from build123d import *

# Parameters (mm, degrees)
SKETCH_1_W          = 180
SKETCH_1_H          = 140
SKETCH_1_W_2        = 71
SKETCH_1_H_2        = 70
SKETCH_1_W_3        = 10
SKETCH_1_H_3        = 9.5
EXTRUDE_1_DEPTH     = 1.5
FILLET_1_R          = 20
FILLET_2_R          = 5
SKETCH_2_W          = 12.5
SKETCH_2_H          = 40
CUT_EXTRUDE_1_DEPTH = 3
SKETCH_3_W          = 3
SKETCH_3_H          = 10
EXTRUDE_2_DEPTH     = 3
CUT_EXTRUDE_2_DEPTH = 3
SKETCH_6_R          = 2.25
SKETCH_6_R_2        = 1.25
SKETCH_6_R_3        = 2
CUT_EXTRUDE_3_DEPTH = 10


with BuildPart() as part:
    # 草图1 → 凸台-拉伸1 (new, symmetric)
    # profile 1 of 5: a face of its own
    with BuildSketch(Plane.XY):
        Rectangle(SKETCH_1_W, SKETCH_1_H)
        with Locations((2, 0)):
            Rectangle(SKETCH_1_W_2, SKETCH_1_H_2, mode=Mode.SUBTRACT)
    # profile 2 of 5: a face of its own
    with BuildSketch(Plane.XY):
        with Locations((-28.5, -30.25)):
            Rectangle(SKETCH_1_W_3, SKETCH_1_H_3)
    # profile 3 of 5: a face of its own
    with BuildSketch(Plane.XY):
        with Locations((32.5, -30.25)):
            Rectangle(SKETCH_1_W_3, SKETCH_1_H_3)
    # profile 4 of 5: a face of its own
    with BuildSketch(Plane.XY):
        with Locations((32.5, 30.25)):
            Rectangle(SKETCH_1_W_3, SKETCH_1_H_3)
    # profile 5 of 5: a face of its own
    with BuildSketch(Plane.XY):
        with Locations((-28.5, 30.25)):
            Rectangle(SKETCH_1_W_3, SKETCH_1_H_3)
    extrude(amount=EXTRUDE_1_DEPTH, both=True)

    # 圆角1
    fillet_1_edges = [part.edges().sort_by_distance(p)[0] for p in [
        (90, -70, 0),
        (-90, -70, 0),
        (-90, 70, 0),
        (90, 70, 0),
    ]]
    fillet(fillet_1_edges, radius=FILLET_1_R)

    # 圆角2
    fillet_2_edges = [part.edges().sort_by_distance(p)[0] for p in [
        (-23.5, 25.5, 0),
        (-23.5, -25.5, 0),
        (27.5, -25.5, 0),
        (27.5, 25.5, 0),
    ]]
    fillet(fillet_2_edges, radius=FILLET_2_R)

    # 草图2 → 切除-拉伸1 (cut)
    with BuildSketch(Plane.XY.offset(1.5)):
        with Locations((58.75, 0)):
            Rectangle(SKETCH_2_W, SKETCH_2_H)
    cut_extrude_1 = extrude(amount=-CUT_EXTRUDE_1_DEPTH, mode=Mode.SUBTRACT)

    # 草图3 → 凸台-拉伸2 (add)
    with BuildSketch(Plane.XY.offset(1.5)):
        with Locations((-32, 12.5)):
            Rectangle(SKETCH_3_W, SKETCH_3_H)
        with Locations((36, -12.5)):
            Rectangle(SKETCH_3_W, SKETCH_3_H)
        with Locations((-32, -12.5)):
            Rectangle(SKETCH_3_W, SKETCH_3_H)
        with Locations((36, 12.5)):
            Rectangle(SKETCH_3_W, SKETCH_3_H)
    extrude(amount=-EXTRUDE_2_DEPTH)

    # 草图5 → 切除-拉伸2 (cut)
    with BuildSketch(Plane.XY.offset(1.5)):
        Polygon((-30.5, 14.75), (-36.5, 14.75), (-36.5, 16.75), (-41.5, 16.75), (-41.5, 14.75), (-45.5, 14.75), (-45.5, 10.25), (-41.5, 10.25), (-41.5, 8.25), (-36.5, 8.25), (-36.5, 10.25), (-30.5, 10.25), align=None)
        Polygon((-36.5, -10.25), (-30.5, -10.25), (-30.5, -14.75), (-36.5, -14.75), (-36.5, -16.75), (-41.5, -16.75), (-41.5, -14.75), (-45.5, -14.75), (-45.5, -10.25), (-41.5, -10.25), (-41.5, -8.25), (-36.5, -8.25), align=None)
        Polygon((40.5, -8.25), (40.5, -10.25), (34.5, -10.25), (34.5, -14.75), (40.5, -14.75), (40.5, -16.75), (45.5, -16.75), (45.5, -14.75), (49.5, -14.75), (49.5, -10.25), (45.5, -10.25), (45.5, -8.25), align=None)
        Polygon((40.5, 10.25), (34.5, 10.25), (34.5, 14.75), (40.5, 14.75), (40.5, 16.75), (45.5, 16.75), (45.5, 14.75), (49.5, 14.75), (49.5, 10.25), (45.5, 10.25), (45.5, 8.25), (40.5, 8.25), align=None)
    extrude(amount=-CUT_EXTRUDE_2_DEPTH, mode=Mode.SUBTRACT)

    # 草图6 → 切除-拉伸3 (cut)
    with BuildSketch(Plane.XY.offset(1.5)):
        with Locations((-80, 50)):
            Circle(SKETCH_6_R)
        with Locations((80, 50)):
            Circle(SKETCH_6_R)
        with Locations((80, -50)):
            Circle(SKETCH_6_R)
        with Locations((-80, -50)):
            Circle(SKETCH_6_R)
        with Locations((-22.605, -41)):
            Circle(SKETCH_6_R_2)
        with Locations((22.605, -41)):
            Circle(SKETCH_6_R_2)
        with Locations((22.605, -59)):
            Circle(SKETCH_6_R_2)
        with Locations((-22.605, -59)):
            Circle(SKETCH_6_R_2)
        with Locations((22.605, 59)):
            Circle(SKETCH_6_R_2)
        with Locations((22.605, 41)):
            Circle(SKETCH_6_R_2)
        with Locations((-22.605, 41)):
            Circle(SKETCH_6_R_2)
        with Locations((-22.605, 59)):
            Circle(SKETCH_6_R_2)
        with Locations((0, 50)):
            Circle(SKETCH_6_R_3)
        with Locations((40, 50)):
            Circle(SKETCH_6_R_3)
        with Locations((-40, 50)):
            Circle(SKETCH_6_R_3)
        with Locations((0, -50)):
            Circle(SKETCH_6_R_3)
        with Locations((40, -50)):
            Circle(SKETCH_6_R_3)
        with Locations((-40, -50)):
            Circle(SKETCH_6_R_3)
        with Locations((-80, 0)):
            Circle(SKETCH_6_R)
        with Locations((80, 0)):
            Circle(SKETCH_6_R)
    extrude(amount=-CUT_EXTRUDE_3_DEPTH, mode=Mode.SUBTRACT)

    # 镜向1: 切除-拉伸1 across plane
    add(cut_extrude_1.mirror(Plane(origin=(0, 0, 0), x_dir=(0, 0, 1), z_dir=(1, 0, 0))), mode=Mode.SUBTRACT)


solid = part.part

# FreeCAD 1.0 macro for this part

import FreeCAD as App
import Part
import Sketcher
from FreeCAD import Vector


def edges_at(feature, points):
    """Names of the edges that pass closest to the given points."""
    edges = feature.Shape.Edges
    near = lambda p: min(range(len(edges)), key=lambda i: edges[i].distToShape(Part.Vertex(*p))[0])
    return sorted({f"Edge{near(p) + 1}" for p in points})

doc = App.newDocument("Part")
body = doc.addObject("PartDesign::Body", "Body")

sketch1 = body.newObject("Sketcher::SketchObject", "Sketch")
sketch1.AttachmentSupport = (doc.getObject("XY_Plane"), [""])
sketch1.MapMode = "FlatFace"
sketch1.addGeometry([
    Part.LineSegment(Vector(-90, 70, 0), Vector(-90, -70, 0)),
    Part.LineSegment(Vector(-90, -70, 0), Vector(90, -70, 0)),
    Part.LineSegment(Vector(90, -70, 0), Vector(90, 70, 0)),
    Part.LineSegment(Vector(90, 70, 0), Vector(-90, 70, 0)),
    Part.LineSegment(Vector(28, -35, 0), Vector(-24, -35, 0)),
    Part.LineSegment(Vector(-24, -35, 0), Vector(-24, -26, 0)),
    Part.LineSegment(Vector(-24, -26, 0), Vector(-34, -26, 0)),
    Part.LineSegment(Vector(-34, -26, 0), Vector(-34, 26, 0)),
    Part.LineSegment(Vector(-34, 26, 0), Vector(-24, 26, 0)),
    Part.LineSegment(Vector(-24, 26, 0), Vector(-24, 35, 0)),
    Part.LineSegment(Vector(-24, 35, 0), Vector(28, 35, 0)),
    Part.LineSegment(Vector(28, 35, 0), Vector(28, 26, 0)),
    Part.LineSegment(Vector(28, 26, 0), Vector(38, 26, 0)),
    Part.LineSegment(Vector(38, 26, 0), Vector(38, -26, 0)),
    Part.LineSegment(Vector(38, -26, 0), Vector(28, -26, 0)),
    Part.LineSegment(Vector(28, -26, 0), Vector(28, -35, 0)),
], False)
sketch1.addConstraint([
    Sketcher.Constraint("Coincident", 0, 2, 1, 1),
    Sketcher.Constraint("Coincident", 1, 2, 2, 1),
    Sketcher.Constraint("Coincident", 2, 2, 3, 1),
    Sketcher.Constraint("Coincident", 3, 2, 0, 1),
    Sketcher.Constraint("Coincident", 4, 2, 5, 1),
    Sketcher.Constraint("Coincident", 5, 2, 6, 1),
    Sketcher.Constraint("Coincident", 6, 2, 7, 1),
    Sketcher.Constraint("Coincident", 7, 2, 8, 1),
    Sketcher.Constraint("Coincident", 8, 2, 9, 1),
    Sketcher.Constraint("Coincident", 9, 2, 10, 1),
    Sketcher.Constraint("Coincident", 10, 2, 11, 1),
    Sketcher.Constraint("Coincident", 11, 2, 12, 1),
    Sketcher.Constraint("Coincident", 12, 2, 13, 1),
    Sketcher.Constraint("Coincident", 13, 2, 14, 1),
    Sketcher.Constraint("Coincident", 14, 2, 15, 1),
    Sketcher.Constraint("Coincident", 15, 2, 4, 1),
    Sketcher.Constraint("Vertical", 0),
    Sketcher.Constraint("Horizontal", 1),
    Sketcher.Constraint("Vertical", 2),
    Sketcher.Constraint("Horizontal", 3),
    Sketcher.Constraint("Horizontal", 4),
    Sketcher.Constraint("Vertical", 5),
    Sketcher.Constraint("Horizontal", 6),
    Sketcher.Constraint("Vertical", 7),
    Sketcher.Constraint("Horizontal", 8),
    Sketcher.Constraint("Vertical", 9),
    Sketcher.Constraint("Horizontal", 10),
    Sketcher.Constraint("Vertical", 11),
    Sketcher.Constraint("Horizontal", 12),
    Sketcher.Constraint("Vertical", 13),
    Sketcher.Constraint("Horizontal", 14),
    Sketcher.Constraint("Vertical", 15),
    Sketcher.Constraint("Symmetric", 0, 2, 2, 2, -1, 1),
    Sketcher.Constraint("Symmetric", 5, 2, 8, 2, -1),
    Sketcher.Constraint("Symmetric", 11, 2, 14, 2, -1),
    Sketcher.Constraint("Horizontal", 8, 2, 11, 2),
    Sketcher.Constraint("Equal", 8, 12),
    Sketcher.Constraint("Equal", 10, 7),
    Sketcher.Constraint("Equal", 5, 9),
    Sketcher.Constraint("DistanceX", 1, 1, 1, 2, 180.0),
    Sketcher.Constraint("DistanceX", 4, 2, 4, 1, 51.0),
    Sketcher.Constraint("DistanceX", 6, 2, 6, 1, 10.0),
    Sketcher.Constraint("DistanceY", 0, 2, 0, 1, 140.0),
    Sketcher.Constraint("DistanceY", 5, 1, 5, 2, 9.5),
    Sketcher.Constraint("DistanceX", 4, 2, -1, 1, 23.5),
])
pad1 = body.newObject("PartDesign::Pad", "Pad")
pad1.Profile = sketch1
pad1.Length = 3
pad1.Midplane = True
doc.recompute()

fillet = body.newObject("PartDesign::Fillet", "Fillet")
fillet.Base = (pad1, edges_at(pad1, [
    (90, -70, 0),
    (-90, -70, 0),
    (-90, 70, 0),
    (90, 70, 0),
]))
fillet.Radius = 20
doc.recompute()

fillet2 = body.newObject("PartDesign::Fillet", "Fillet001")
fillet2.Base = (fillet, edges_at(fillet, [
    (-23.5, 25.5, 0),
    (-23.5, -25.5, 0),
    (27.5, -25.5, 0),
    (27.5, 25.5, 0),
]))
fillet2.Radius = 5

sketch2 = body.newObject("Sketcher::SketchObject", "Sketch001")
sketch2.AttachmentSupport = (doc.getObject("XY_Plane"), [""])
sketch2.MapMode = "FlatFace"
sketch2.AttachmentOffset = App.Placement(Vector(0, 0, 1.5), App.Rotation())
sketch2.addGeometry([
    Part.LineSegment(Vector(52, 20, 0), Vector(52, -20, 0)),
    Part.LineSegment(Vector(52, -20, 0), Vector(65, -20, 0)),
    Part.LineSegment(Vector(65, -20, 0), Vector(65, 20, 0)),
    Part.LineSegment(Vector(65, 20, 0), Vector(52, 20, 0)),
], False)
sketch2.addConstraint([
    Sketcher.Constraint("Coincident", 0, 2, 1, 1),
    Sketcher.Constraint("Coincident", 1, 2, 2, 1),
    Sketcher.Constraint("Coincident", 2, 2, 3, 1),
    Sketcher.Constraint("Coincident", 3, 2, 0, 1),
    Sketcher.Constraint("Vertical", 0),
    Sketcher.Constraint("Horizontal", 1),
    Sketcher.Constraint("Vertical", 2),
    Sketcher.Constraint("Horizontal", 3),
    Sketcher.Constraint("DistanceY", 0, 2, 0, 1, 40.0),
    Sketcher.Constraint("DistanceX", 1, 1, 1, 2, 12.5),
    Sketcher.Constraint("DistanceY", 0, 2, -1, 1, 20.0),
    Sketcher.Constraint("DistanceX", -1, 1, 1, 2, 65.0),
])
pocket1 = body.newObject("PartDesign::Pocket", "Pocket")
pocket1.Profile = sketch2
pocket1.Length = 3

sketch3 = body.newObject("Sketcher::SketchObject", "Sketch002")
sketch3.AttachmentSupport = (doc.getObject("XY_Plane"), [""])
sketch3.MapMode = "FlatFace"
sketch3.AttachmentOffset = App.Placement(Vector(0, 0, 1.5), App.Rotation())
sketch3.addGeometry([
    Part.LineSegment(Vector(-33.5, 17.5, 0), Vector(-33.5, 7.5, 0)),
    Part.LineSegment(Vector(-33.5, 7.5, 0), Vector(-30.5, 7.5, 0)),
    Part.LineSegment(Vector(-30.5, 7.5, 0), Vector(-30.5, 17.5, 0)),
    Part.LineSegment(Vector(-30.5, 17.5, 0), Vector(-33.5, 17.5, 0)),
    Part.LineSegment(Vector(34.5, -7.5, 0), Vector(34.5, -17.5, 0)),
    Part.LineSegment(Vector(34.5, -17.5, 0), Vector(37.5, -17.5, 0)),
    Part.LineSegment(Vector(37.5, -17.5, 0), Vector(37.5, -7.5, 0)),
    Part.LineSegment(Vector(37.5, -7.5, 0), Vector(34.5, -7.5, 0)),
    Part.LineSegment(Vector(-33.5, -7.5, 0), Vector(-33.5, -17.5, 0)),
    Part.LineSegment(Vector(-33.5, -17.5, 0), Vector(-30.5, -17.5, 0)),
    Part.LineSegment(Vector(-30.5, -17.5, 0), Vector(-30.5, -7.5, 0)),
    Part.LineSegment(Vector(-30.5, -7.5, 0), Vector(-33.5, -7.5, 0)),
    Part.LineSegment(Vector(34.5, 17.5, 0), Vector(34.5, 7.5, 0)),
    Part.LineSegment(Vector(34.5, 7.5, 0), Vector(37.5, 7.5, 0)),
    Part.LineSegment(Vector(37.5, 7.5, 0), Vector(37.5, 17.5, 0)),
    Part.LineSegment(Vector(37.5, 17.5, 0), Vector(34.5, 17.5, 0)),
], False)
sketch3.addConstraint([
    Sketcher.Constraint("Coincident", 0, 2, 1, 1),
    Sketcher.Constraint("Coincident", 1, 2, 2, 1),
    Sketcher.Constraint("Coincident", 2, 2, 3, 1),
    Sketcher.Constraint("Coincident", 3, 2, 0, 1),
    Sketcher.Constraint("Coincident", 4, 2, 5, 1),
    Sketcher.Constraint("Coincident", 5, 2, 6, 1),
    Sketcher.Constraint("Coincident", 6, 2, 7, 1),
    Sketcher.Constraint("Coincident", 7, 2, 4, 1),
    Sketcher.Constraint("Coincident", 8, 2, 9, 1),
    Sketcher.Constraint("Coincident", 9, 2, 10, 1),
    Sketcher.Constraint("Coincident", 10, 2, 11, 1),
    Sketcher.Constraint("Coincident", 11, 2, 8, 1),
    Sketcher.Constraint("Coincident", 12, 2, 13, 1),
    Sketcher.Constraint("Coincident", 13, 2, 14, 1),
    Sketcher.Constraint("Coincident", 14, 2, 15, 1),
    Sketcher.Constraint("Coincident", 15, 2, 12, 1),
    Sketcher.Constraint("Vertical", 0),
    Sketcher.Constraint("Horizontal", 1),
    Sketcher.Constraint("Vertical", 2),
    Sketcher.Constraint("Horizontal", 3),
    Sketcher.Constraint("Vertical", 4),
    Sketcher.Constraint("Horizontal", 5),
    Sketcher.Constraint("Vertical", 6),
    Sketcher.Constraint("Horizontal", 7),
    Sketcher.Constraint("Vertical", 8),
    Sketcher.Constraint("Horizontal", 9),
    Sketcher.Constraint("Vertical", 10),
    Sketcher.Constraint("Horizontal", 11),
    Sketcher.Constraint("Vertical", 12),
    Sketcher.Constraint("Horizontal", 13),
    Sketcher.Constraint("Vertical", 14),
    Sketcher.Constraint("Horizontal", 15),
    Sketcher.Constraint("Symmetric", 3, 2, 8, 2, -1),
    Sketcher.Constraint("Symmetric", 1, 2, 10, 2, -1),
    Sketcher.Constraint("Symmetric", 7, 2, 12, 2, -1),
    Sketcher.Constraint("Symmetric", 5, 2, 14, 2, -1),
    Sketcher.Constraint("Horizontal", 5, 2, 8, 2),
    Sketcher.Constraint("Horizontal", 7, 2, 10, 2),
    Sketcher.Constraint("Equal", 3, 5),
    Sketcher.Constraint("DistanceX", 1, 1, 1, 2, 3.0),
    Sketcher.Constraint("DistanceY", 0, 2, 0, 1, 10.0),
    Sketcher.Constraint("DistanceX", 1, 2, 4, 2, 65.0),
    Sketcher.Constraint("DistanceY", 4, 2, 1, 2, 25.0),
    Sketcher.Constraint("DistanceX", 0, 2, -1, 1, 33.5),
])
pad2 = body.newObject("PartDesign::Pad", "Pad001")
pad2.Profile = sketch3
pad2.Length = 3
pad2.Reversed = True

sketch4 = body.newObject("Sketcher::SketchObject", "Sketch003")
sketch4.AttachmentSupport = (doc.getObject("XY_Plane"), [""])
sketch4.MapMode = "FlatFace"
sketch4.AttachmentOffset = App.Placement(Vector(0, 0, 1.5), App.Rotation())
sketch4.addGeometry([
    Part.LineSegment(Vector(-30.5, 14.8, 0), Vector(-36.5, 14.8, 0)),
    Part.LineSegment(Vector(-36.5, 14.8, 0), Vector(-36.5, 16.8, 0)),
    Part.LineSegment(Vector(-36.5, 16.8, 0), Vector(-41.5, 16.8, 0)),
    Part.LineSegment(Vector(-41.5, 16.8, 0), Vector(-41.5, 14.8, 0)),
    Part.LineSegment(Vector(-41.5, 14.8, 0), Vector(-45.5, 14.8, 0)),
    Part.LineSegment(Vector(-45.5, 14.8, 0), Vector(-45.5, 10.2, 0)),
    Part.LineSegment(Vector(-45.5, 10.2, 0), Vector(-41.5, 10.2, 0)),
    Part.LineSegment(Vector(-41.5, 10.2, 0), Vector(-41.5, 8.2, 0)),
    Part.LineSegment(Vector(-41.5, 8.2, 0), Vector(-36.5, 8.2, 0)),
    Part.LineSegment(Vector(-36.5, 8.2, 0), Vector(-36.5, 10.2, 0)),
    Part.LineSegment(Vector(-36.5, 10.2, 0), Vector(-30.5, 10.2, 0)),
    Part.LineSegment(Vector(-30.5, 10.2, 0), Vector(-30.5, 14.8, 0)),
    Part.LineSegment(Vector(-30.5, -10.2, 0), Vector(-36.5, -10.2, 0)),
    Part.LineSegment(Vector(-36.5, -10.2, 0), Vector(-36.5, -8.2, 0)),
    Part.LineSegment(Vector(-36.5, -8.2, 0), Vector(-41.5, -8.2, 0)),
    Part.LineSegment(Vector(-41.5, -8.2, 0), Vector(-41.5, -10.2, 0)),
    Part.LineSegment(Vector(-41.5, -10.2, 0), Vector(-45.5, -10.2, 0)),
    Part.LineSegment(Vector(-45.5, -10.2, 0), Vector(-45.5, -14.8, 0)),
    Part.LineSegment(Vector(-45.5, -14.8, 0), Vector(-41.5, -14.8, 0)),
    Part.LineSegment(Vector(-41.5, -14.8, 0), Vector(-41.5, -16.8, 0)),
    Part.LineSegment(Vector(-41.5, -16.8, 0), Vector(-36.5, -16.8, 0)),
    Part.LineSegment(Vector(-36.5, -16.8, 0), Vector(-36.5, -14.8, 0)),
    Part.LineSegment(Vector(-36.5, -14.8, 0), Vector(-30.5, -14.8, 0)),
    Part.LineSegment(Vector(-30.5, -14.8, 0), Vector(-30.5, -10.2, 0)),
    Part.LineSegment(Vector(40.5, -8.2, 0), Vector(40.5, -10.2, 0)),
    Part.LineSegment(Vector(40.5, -10.2, 0), Vector(34.5, -10.2, 0)),
    Part.LineSegment(Vector(34.5, -10.2, 0), Vector(34.5, -14.8, 0)),
    Part.LineSegment(Vector(34.5, -14.8, 0), Vector(40.5, -14.8, 0)),
    Part.LineSegment(Vector(40.5, -14.8, 0), Vector(40.5, -16.8, 0)),
    Part.LineSegment(Vector(40.5, -16.8, 0), Vector(45.5, -16.8, 0)),
    Part.LineSegment(Vector(45.5, -16.8, 0), Vector(45.5, -14.8, 0)),
    Part.LineSegment(Vector(45.5, -14.8, 0), Vector(49.5, -14.8, 0)),
    Part.LineSegment(Vector(49.5, -14.8, 0), Vector(49.5, -10.2, 0)),
    Part.LineSegment(Vector(49.5, -10.2, 0), Vector(45.5, -10.2, 0)),
    Part.LineSegment(Vector(45.5, -10.2, 0), Vector(45.5, -8.2, 0)),
    Part.LineSegment(Vector(45.5, -8.2, 0), Vector(40.5, -8.2, 0)),
    Part.LineSegment(Vector(34.5, 10.2, 0), Vector(40.5, 10.2, 0)),
    Part.LineSegment(Vector(40.5, 10.2, 0), Vector(40.5, 8.2, 0)),
    Part.LineSegment(Vector(40.5, 8.2, 0), Vector(45.5, 8.2, 0)),
    Part.LineSegment(Vector(45.5, 8.2, 0), Vector(45.5, 10.2, 0)),
    Part.LineSegment(Vector(45.5, 10.2, 0), Vector(49.5, 10.2, 0)),
    Part.LineSegment(Vector(49.5, 10.2, 0), Vector(49.5, 14.8, 0)),
    Part.LineSegment(Vector(49.5, 14.8, 0), Vector(45.5, 14.8, 0)),
    Part.LineSegment(Vector(45.5, 14.8, 0), Vector(45.5, 16.8, 0)),
    Part.LineSegment(Vector(45.5, 16.8, 0), Vector(40.5, 16.8, 0)),
    Part.LineSegment(Vector(40.5, 16.8, 0), Vector(40.5, 14.8, 0)),
    Part.LineSegment(Vector(40.5, 14.8, 0), Vector(34.5, 14.8, 0)),
    Part.LineSegment(Vector(34.5, 14.8, 0), Vector(34.5, 10.2, 0)),
], False)
sketch4.addConstraint([
    Sketcher.Constraint("Coincident", 0, 2, 1, 1),
    Sketcher.Constraint("Coincident", 1, 2, 2, 1),
    Sketcher.Constraint("Coincident", 2, 2, 3, 1),
    Sketcher.Constraint("Coincident", 3, 2, 4, 1),
    Sketcher.Constraint("Coincident", 4, 2, 5, 1),
    Sketcher.Constraint("Coincident", 5, 2, 6, 1),
    Sketcher.Constraint("Coincident", 6, 2, 7, 1),
    Sketcher.Constraint("Coincident", 7, 2, 8, 1),
    Sketcher.Constraint("Coincident", 8, 2, 9, 1),
    Sketcher.Constraint("Coincident", 9, 2, 10, 1),
    Sketcher.Constraint("Coincident", 10, 2, 11, 1),
    Sketcher.Constraint("Coincident", 11, 2, 0, 1),
    Sketcher.Constraint("Coincident", 12, 2, 13, 1),
    Sketcher.Constraint("Coincident", 13, 2, 14, 1),
    Sketcher.Constraint("Coincident", 14, 2, 15, 1),
    Sketcher.Constraint("Coincident", 15, 2, 16, 1),
    Sketcher.Constraint("Coincident", 16, 2, 17, 1),
    Sketcher.Constraint("Coincident", 17, 2, 18, 1),
    Sketcher.Constraint("Coincident", 18, 2, 19, 1),
    Sketcher.Constraint("Coincident", 19, 2, 20, 1),
    Sketcher.Constraint("Coincident", 20, 2, 21, 1),
    Sketcher.Constraint("Coincident", 21, 2, 22, 1),
    Sketcher.Constraint("Coincident", 22, 2, 23, 1),
    Sketcher.Constraint("Coincident", 23, 2, 12, 1),
    Sketcher.Constraint("Coincident", 24, 2, 25, 1),
    Sketcher.Constraint("Coincident", 25, 2, 26, 1),
    Sketcher.Constraint("Coincident", 26, 2, 27, 1),
    Sketcher.Constraint("Coincident", 27, 2, 28, 1),
    Sketcher.Constraint("Coincident", 28, 2, 29, 1),
    Sketcher.Constraint("Coincident", 29, 2, 30, 1),
    Sketcher.Constraint("Coincident", 30, 2, 31, 1),
    Sketcher.Constraint("Coincident", 31, 2, 32, 1),
    Sketcher.Constraint("Coincident", 32, 2, 33, 1),
    Sketcher.Constraint("Coincident", 33, 2, 34, 1),
    Sketcher.Constraint("Coincident", 34, 2, 35, 1),
    Sketcher.Constraint("Coincident", 35, 2, 24, 1),
    Sketcher.Constraint("Coincident", 36, 2, 37, 1),
    Sketcher.Constraint("Coincident", 37, 2, 38, 1),
    Sketcher.Constraint("Coincident", 38, 2, 39, 1),
    Sketcher.Constraint("Coincident", 39, 2, 40, 1),
    Sketcher.Constraint("Coincident", 40, 2, 41, 1),
    Sketcher.Constraint("Coincident", 41, 2, 42, 1),
    Sketcher.Constraint("Coincident", 42, 2, 43, 1),
    Sketcher.Constraint("Coincident", 43, 2, 44, 1),
    Sketcher.Constraint("Coincident", 44, 2, 45, 1),
    Sketcher.Constraint("Coincident", 45, 2, 46, 1),
    Sketcher.Constraint("Coincident", 46, 2, 47, 1),
    Sketcher.Constraint("Coincident", 47, 2, 36, 1),
    Sketcher.Constraint("Horizontal", 0),
    Sketcher.Constraint("Vertical", 1),
    Sketcher.Constraint("Horizontal", 2),
    Sketcher.Constraint("Vertical", 3),
    Sketcher.Constraint("Horizontal", 4),
    Sketcher.Constraint("Vertical", 5),
    Sketcher.Constraint("Horizontal", 6),
    Sketcher.Constraint("Vertical", 7),
    Sketcher.Constraint("Horizontal", 8),
    Sketcher.Constraint("Vertical", 9),
    Sketcher.Constraint("Horizontal", 10),
    Sketcher.Constraint("Vertical", 11),
    Sketcher.Constraint("Horizontal", 12),
    Sketcher.Constraint("Vertical", 13),
    Sketcher.Constraint("Horizontal", 14),
    Sketcher.Constraint("Vertical", 15),
    Sketcher.Constraint("Horizontal", 16),
    Sketcher.Constraint("Vertical", 17),
    Sketcher.Constraint("Horizontal", 18),
    Sketcher.Constraint("Vertical", 19),
    Sketcher.Constraint("Horizontal", 20),
    Sketcher.Constraint("Vertical", 21),
    Sketcher.Constraint("Horizontal", 22),
    Sketcher.Constraint("Vertical", 23),
    Sketcher.Constraint("Vertical", 24),
    Sketcher.Constraint("Horizontal", 25),
    Sketcher.Constraint("Vertical", 26),
    Sketcher.Constraint("Horizontal", 27),
    Sketcher.Constraint("Vertical", 28),
    Sketcher.Constraint("Horizontal", 29),
    Sketcher.Constraint("Vertical", 30),
    Sketcher.Constraint("Horizontal", 31),
    Sketcher.Constraint("Vertical", 32),
    Sketcher.Constraint("Horizontal", 33),
    Sketcher.Constraint("Vertical", 34),
    Sketcher.Constraint("Horizontal", 35),
    Sketcher.Constraint("Horizontal", 36),
    Sketcher.Constraint("Vertical", 37),
    Sketcher.Constraint("Horizontal", 38),
    Sketcher.Constraint("Vertical", 39),
    Sketcher.Constraint("Horizontal", 40),
    Sketcher.Constraint("Vertical", 41),
    Sketcher.Constraint("Horizontal", 42),
    Sketcher.Constraint("Vertical", 43),
    Sketcher.Constraint("Horizontal", 44),
    Sketcher.Constraint("Vertical", 45),
    Sketcher.Constraint("Horizontal", 46),
    Sketcher.Constraint("Vertical", 47),
    Sketcher.Constraint("Symmetric", 4, 2, 30, 2, -1, 1),
    Sketcher.Constraint("Symmetric", 5, 2, 33, 2, -1, 1),
    Sketcher.Constraint("Symmetric", 16, 2, 39, 2, -1, 1),
    Sketcher.Constraint("Symmetric", 17, 2, 42, 2, -1, 1),
    Sketcher.Constraint("Symmetric", 17, 2, 30, 2, -2),
    Sketcher.Constraint("Symmetric", 9, 2, 12, 2, -1),
    Sketcher.Constraint("Symmetric", 7, 2, 14, 2, -1),
    Sketcher.Constraint("Symmetric", 2, 2, 19, 2, -1),
    Sketcher.Constraint("Symmetric", 0, 2, 21, 2, -1),
    Sketcher.Constraint("Symmetric", 24, 2, 36, 2, -1),
    Sketcher.Constraint("Symmetric", 32, 2, 40, 2, -1),
    Sketcher.Constraint("Symmetric", 28, 2, 44, 2, -1),
    Sketcher.Constraint("Symmetric", 26, 2, 46, 2, -1),
    Sketcher.Constraint("Horizontal", 0, 2, 3, 2),
    Sketcher.Constraint("Horizontal", 6, 2, 9, 2),
    Sketcher.Constraint("Horizontal", 23, 2, 24, 2),
    Sketcher.Constraint("Horizontal", 22, 2, 26, 2),
    Sketcher.Constraint("Horizontal", 20, 2, 28, 2),
    Sketcher.Constraint("Horizontal", 14, 2, 34, 2),
    Sketcher.Constraint("Horizontal", 8, 2, 37, 2),
    Sketcher.Constraint("Vertical", 3, 2, 6, 2),
    Sketcher.Constraint("Vertical", 1, 2, 8, 2),
    Sketcher.Constraint("Vertical", 11, 2, 22, 2),
    Sketcher.Constraint("Vertical", 24, 2, 27, 2),
    Sketcher.Constraint("Equal", 22, 25),
    Sketcher.Constraint("Equal", 20, 29),
    Sketcher.Constraint("Equal", 18, 31),
    Sketcher.Constraint("Equal", 3, 7),
    Sketcher.Constraint("DistanceX", 0, 2, 0, 1, 6.0),
    Sketcher.Constraint("DistanceX", 2, 2, 2, 1, 5.0),
    Sketcher.Constraint("DistanceX", 4, 2, 4, 1, 4.0),
    Sketcher.Constraint("DistanceY", 1, 1, 1, 2, 2.0),
    Sketcher.Constraint("DistanceY", 5, 2, 5, 1, 4.5),
    Sketcher.Constraint("DistanceX", 23, 2, 24, 2, 71.0),
    Sketcher.Constraint("DistanceY", 24, 2, 11, 2, 25.0),
])
pocket2 = body.newObject("PartDesign::Pocket", "Pocket001")
pocket2.Profile = sketch4
pocket2.Length = 3

sketch5 = body.newObject("Sketcher::SketchObject", "Sketch004")
sketch5.AttachmentSupport = (doc.getObject("XY_Plane"), [""])
sketch5.MapMode = "FlatFace"
sketch5.AttachmentOffset = App.Placement(Vector(0, 0, 1.5), App.Rotation())
sketch5.addGeometry([
    Part.Circle(Vector(-80, 50, 0), Vector(0, 0, 1), 2.2),
    Part.Circle(Vector(80, 50, 0), Vector(0, 0, 1), 2.2),
    Part.Circle(Vector(80, -50, 0), Vector(0, 0, 1), 2.2),
    Part.Circle(Vector(-80, -50, 0), Vector(0, 0, 1), 2.2),
    Part.Circle(Vector(-22.6, -41, 0), Vector(0, 0, 1), 1.2),
    Part.Circle(Vector(22.6, -41, 0), Vector(0, 0, 1), 1.2),
    Part.Circle(Vector(22.6, -59, 0), Vector(0, 0, 1), 1.2),
    Part.Circle(Vector(-22.6, -59, 0), Vector(0, 0, 1), 1.2),
    Part.Circle(Vector(22.6, 59, 0), Vector(0, 0, 1), 1.2),
    Part.Circle(Vector(22.6, 41, 0), Vector(0, 0, 1), 1.2),
    Part.Circle(Vector(-22.6, 41, 0), Vector(0, 0, 1), 1.2),
    Part.Circle(Vector(-22.6, 59, 0), Vector(0, 0, 1), 1.2),
    Part.Circle(Vector(0, 50, 0), Vector(0, 0, 1), 2),
    Part.Circle(Vector(40, 50, 0), Vector(0, 0, 1), 2),
    Part.Circle(Vector(-40, 50, 0), Vector(0, 0, 1), 2),
    Part.Circle(Vector(0, -50, 0), Vector(0, 0, 1), 2),
    Part.Circle(Vector(40, -50, 0), Vector(0, 0, 1), 2),
    Part.Circle(Vector(-40, -50, 0), Vector(0, 0, 1), 2),
    Part.Circle(Vector(-80, 0, 0), Vector(0, 0, 1), 2.2),
    Part.Circle(Vector(80, 0, 0), Vector(0, 0, 1), 2.2),
], False)
sketch5.addConstraint([
    Sketcher.Constraint("Equal", 0, 1),
    Sketcher.Constraint("Equal", 1, 2),
    Sketcher.Constraint("Equal", 2, 3),
    Sketcher.Constraint("Equal", 4, 5),
    Sketcher.Constraint("Equal", 5, 6),
    Sketcher.Constraint("Equal", 6, 7),
    Sketcher.Constraint("Equal", 7, 8),
    Sketcher.Constraint("Equal", 8, 9),
    Sketcher.Constraint("Equal", 9, 10),
    Sketcher.Constraint("Equal", 10, 11),
    Sketcher.Constraint("Equal", 12, 13),
    Sketcher.Constraint("Equal", 13, 14),
    Sketcher.Constraint("Equal", 14, 15),
    Sketcher.Constraint("Equal", 15, 16),
    Sketcher.Constraint("Equal", 16, 17),
    Sketcher.Constraint("Equal", 3, 18),
    Sketcher.Constraint("Equal", 18, 19),
    Sketcher.Constraint("Symmetric", 0, 3, 2, 3, -1, 1),
    Sketcher.Constraint("Symmetric", 1, 3, 3, 3, -1, 1),
    Sketcher.Constraint("Symmetric", 7, 3, 8, 3, -1, 1),
    Sketcher.Constraint("Symmetric", 4, 3, 9, 3, -1, 1),
    Sketcher.Constraint("Symmetric", 5, 3, 10, 3, -1, 1),
    Sketcher.Constraint("Symmetric", 6, 3, 11, 3, -1, 1),
    Sketcher.Constraint("Symmetric", 12, 3, 15, 3, -1, 1),
    Sketcher.Constraint("Symmetric", 14, 3, 16, 3, -1, 1),
    Sketcher.Constraint("Symmetric", 13, 3, 17, 3, -1, 1),
    Sketcher.Constraint("Symmetric", 18, 3, 19, 3, -1, 1),
    Sketcher.Constraint("Symmetric", 0, 3, 1, 3, -2),
    Sketcher.Constraint("Symmetric", 4, 3, 5, 3, -2),
    Sketcher.Constraint("Symmetric", 6, 3, 7, 3, -2),
    Sketcher.Constraint("Symmetric", 13, 3, 14, 3, -2),
    Sketcher.Constraint("PointOnObject", 12, 3, -2),
    Sketcher.Constraint("PointOnObject", 18, 3, -1),
    Sketcher.Constraint("Horizontal", 1, 3, 12, 3),
    Sketcher.Constraint("Horizontal", 12, 3, 13, 3),
    Sketcher.Constraint("Vertical", 5, 3, 6, 3),
    Sketcher.Constraint("Vertical", 3, 3, 18, 3),
    Sketcher.Constraint("Diameter", 12, 4.0),
    Sketcher.Constraint("Diameter", 0, 4.5),
    Sketcher.Constraint("Diameter", 4, 2.5),
    Sketcher.Constraint("DistanceX", 0, 3, -1, 1, 80.0),
    Sketcher.Constraint("DistanceY", -1, 1, 0, 3, 50.0),
    Sketcher.Constraint("DistanceY", 4, 3, -1, 1, 41.0),
    Sketcher.Constraint("DistanceY", 6, 3, -1, 1, 59.0),
    Sketcher.Constraint("DistanceX", -1, 1, 13, 3, 40.0),
    Sketcher.Constraint("DistanceX", 4, 3, 5, 3, 45.21),
])
pocket3 = body.newObject("PartDesign::Pocket", "Pocket002")
pocket3.Profile = sketch5
pocket3.Length = 10
doc.recompute()

mirrored = body.newObject("PartDesign::Mirrored", "Mirrored")
mirrored.Originals = [pocket1]
mirrored.MirrorPlane = (doc.getObject("YZ_Plane"), [""])
body.Tip = mirrored

doc.recompute()
